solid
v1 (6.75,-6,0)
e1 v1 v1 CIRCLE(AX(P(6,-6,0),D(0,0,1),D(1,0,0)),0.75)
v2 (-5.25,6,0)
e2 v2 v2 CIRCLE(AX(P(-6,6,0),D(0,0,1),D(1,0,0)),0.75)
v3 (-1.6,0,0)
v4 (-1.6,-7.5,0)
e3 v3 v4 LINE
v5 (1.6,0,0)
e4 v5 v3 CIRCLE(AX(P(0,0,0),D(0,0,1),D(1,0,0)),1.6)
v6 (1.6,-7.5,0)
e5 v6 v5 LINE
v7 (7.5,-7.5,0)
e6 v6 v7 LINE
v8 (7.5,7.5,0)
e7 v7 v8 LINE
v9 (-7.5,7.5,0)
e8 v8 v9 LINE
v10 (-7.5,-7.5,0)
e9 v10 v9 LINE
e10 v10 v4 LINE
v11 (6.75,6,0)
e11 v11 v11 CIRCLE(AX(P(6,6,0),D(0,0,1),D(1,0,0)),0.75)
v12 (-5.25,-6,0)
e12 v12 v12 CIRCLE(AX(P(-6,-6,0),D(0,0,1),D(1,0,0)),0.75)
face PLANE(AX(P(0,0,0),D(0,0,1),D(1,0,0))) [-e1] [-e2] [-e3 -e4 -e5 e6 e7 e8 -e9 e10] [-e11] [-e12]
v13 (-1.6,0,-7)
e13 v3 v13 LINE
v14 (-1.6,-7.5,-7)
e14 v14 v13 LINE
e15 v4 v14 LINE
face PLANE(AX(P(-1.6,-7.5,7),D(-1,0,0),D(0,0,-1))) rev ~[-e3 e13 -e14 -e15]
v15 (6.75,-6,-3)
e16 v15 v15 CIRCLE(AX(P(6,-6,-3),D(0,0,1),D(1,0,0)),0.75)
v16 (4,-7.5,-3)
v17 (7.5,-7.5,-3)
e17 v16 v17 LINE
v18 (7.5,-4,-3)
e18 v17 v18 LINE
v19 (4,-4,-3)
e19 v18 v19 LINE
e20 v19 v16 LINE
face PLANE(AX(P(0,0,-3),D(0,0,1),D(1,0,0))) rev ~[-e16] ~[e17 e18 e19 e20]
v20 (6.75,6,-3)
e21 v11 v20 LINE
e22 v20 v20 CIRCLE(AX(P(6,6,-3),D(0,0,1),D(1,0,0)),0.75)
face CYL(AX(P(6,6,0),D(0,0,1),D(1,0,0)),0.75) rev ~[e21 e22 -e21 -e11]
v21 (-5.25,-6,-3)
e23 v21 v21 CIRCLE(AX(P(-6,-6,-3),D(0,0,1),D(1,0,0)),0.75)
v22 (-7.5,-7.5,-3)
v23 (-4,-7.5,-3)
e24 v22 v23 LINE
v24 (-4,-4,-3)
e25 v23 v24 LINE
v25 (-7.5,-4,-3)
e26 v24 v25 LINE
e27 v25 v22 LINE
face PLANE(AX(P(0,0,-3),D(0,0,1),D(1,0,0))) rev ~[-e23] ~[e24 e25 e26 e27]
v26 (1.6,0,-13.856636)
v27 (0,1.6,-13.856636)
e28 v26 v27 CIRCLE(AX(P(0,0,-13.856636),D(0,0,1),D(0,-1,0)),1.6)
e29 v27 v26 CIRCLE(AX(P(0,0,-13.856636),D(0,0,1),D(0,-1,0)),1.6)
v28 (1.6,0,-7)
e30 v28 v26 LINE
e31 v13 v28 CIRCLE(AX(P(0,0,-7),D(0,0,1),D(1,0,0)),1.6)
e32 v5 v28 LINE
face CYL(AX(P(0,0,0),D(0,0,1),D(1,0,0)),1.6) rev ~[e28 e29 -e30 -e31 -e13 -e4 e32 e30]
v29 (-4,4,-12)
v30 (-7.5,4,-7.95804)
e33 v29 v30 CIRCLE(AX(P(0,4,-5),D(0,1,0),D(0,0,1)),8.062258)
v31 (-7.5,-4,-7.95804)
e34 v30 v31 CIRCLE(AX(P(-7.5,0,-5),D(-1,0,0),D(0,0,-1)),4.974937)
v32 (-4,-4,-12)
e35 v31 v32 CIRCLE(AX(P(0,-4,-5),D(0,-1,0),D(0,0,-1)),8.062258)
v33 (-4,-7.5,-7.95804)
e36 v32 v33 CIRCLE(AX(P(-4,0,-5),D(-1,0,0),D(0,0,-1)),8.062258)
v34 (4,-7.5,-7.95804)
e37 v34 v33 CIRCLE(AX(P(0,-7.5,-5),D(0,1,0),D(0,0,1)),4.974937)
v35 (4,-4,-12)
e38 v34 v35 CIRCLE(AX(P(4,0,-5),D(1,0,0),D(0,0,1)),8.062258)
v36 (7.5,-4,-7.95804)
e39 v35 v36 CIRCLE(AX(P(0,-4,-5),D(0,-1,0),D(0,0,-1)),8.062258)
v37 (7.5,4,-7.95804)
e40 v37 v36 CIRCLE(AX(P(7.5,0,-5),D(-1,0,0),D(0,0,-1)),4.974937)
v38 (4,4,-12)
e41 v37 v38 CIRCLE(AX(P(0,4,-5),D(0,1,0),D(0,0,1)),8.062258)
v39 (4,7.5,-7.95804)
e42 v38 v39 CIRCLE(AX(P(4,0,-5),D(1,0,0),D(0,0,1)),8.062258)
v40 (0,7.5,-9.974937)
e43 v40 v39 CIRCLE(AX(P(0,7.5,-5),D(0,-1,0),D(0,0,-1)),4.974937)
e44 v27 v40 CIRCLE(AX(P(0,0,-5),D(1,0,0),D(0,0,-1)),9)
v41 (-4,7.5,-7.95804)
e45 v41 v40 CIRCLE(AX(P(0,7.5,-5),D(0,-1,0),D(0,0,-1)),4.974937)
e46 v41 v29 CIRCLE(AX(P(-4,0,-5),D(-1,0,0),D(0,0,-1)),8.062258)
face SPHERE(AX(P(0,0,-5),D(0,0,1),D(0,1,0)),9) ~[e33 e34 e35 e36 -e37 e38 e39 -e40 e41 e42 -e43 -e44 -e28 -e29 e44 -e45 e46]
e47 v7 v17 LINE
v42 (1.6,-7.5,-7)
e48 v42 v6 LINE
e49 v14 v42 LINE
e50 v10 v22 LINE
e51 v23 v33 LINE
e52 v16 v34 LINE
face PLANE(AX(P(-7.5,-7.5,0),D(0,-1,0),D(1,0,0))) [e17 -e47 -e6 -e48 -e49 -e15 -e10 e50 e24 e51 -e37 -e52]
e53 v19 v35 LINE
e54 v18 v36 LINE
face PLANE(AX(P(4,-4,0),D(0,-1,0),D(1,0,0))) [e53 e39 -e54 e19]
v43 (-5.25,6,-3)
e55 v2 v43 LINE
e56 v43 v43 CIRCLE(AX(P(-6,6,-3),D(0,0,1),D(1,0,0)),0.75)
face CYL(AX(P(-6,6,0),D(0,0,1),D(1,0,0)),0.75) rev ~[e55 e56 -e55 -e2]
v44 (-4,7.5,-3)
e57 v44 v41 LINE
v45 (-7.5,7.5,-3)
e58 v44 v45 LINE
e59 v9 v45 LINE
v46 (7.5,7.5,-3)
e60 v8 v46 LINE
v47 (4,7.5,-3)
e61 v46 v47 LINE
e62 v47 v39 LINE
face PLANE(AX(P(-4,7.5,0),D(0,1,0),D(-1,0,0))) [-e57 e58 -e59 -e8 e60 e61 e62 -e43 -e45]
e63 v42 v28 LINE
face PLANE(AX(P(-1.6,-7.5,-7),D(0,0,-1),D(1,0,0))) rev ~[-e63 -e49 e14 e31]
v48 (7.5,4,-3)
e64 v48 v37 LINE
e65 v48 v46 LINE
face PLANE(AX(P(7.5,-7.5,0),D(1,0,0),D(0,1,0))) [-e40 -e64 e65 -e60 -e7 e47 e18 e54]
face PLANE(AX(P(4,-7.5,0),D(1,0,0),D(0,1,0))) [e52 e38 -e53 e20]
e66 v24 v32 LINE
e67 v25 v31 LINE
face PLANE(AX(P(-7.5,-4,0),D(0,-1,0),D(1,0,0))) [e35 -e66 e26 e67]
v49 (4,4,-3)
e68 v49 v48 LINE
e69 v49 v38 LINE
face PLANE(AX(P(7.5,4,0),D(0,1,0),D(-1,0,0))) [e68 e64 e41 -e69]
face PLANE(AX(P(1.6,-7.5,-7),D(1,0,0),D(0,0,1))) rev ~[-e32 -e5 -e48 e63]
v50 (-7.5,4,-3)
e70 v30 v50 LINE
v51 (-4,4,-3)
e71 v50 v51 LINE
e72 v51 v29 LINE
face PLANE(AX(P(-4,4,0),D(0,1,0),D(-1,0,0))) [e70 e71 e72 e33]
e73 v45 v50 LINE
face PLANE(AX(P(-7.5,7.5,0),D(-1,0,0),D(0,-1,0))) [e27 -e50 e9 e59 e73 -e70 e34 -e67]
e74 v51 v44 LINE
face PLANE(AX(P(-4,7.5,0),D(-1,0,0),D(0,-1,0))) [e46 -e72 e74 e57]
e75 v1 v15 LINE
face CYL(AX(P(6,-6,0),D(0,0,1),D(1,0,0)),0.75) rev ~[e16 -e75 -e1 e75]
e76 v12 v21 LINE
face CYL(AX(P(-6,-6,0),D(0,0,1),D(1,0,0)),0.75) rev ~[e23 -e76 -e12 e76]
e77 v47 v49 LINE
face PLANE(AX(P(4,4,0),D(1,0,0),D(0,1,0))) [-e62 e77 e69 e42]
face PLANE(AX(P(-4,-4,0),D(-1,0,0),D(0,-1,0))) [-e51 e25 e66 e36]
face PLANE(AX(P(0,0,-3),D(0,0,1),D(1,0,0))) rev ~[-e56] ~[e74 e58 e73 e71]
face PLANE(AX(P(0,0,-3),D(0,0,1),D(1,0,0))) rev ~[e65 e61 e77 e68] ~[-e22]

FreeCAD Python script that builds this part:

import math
import FreeCAD as App
import Part
import Sketcher


def add_polygon(sketch, points):
    """Adds a closed chain of lines whose ends are joined by coincident constraints."""
    first, n = sketch.GeometryCount, len(points)
    for a, b in zip(points, points[1:] + points[:1]):
        sketch.addGeometry(Part.LineSegment(App.Vector(*a, 0), App.Vector(*b, 0)), False)
    for i in range(n):
        sketch.addConstraint(Sketcher.Constraint("Coincident", first + i, 2, first + (i + 1) % n, 1))

doc = App.newDocument("Part")
body = doc.addObject("PartDesign::Body", "Body")

# Sketch on XY plane
sketch1 = body.newObject("Sketcher::SketchObject", "Sketch")
sketch1.AttachmentSupport = (doc.getObject("XY_Plane"), [""])
sketch1.MapMode = "FlatFace"
add_polygon(sketch1, [(-7.5, 7.5), (-7.5, -7.5), (7.5, -7.5), (7.5, 7.5)])  # lines 0-3
sketch1.addConstraint([
    Sketcher.Constraint("Vertical", 0),
    Sketcher.Constraint("Horizontal", 1),
    Sketcher.Constraint("Vertical", 2),
    Sketcher.Constraint("Horizontal", 3),
    Sketcher.Constraint("Symmetric", 0, 2, 2, 2, -1, 1),
    Sketcher.Constraint("Equal", 3, 0),
    Sketcher.Constraint("DistanceX", 1, 1, 1, 2, 15.0),
])
pad1 = body.newObject("PartDesign::Pad", "Pad")
pad1.Profile = sketch1
pad1.Length = 5
pad1.Reversed = True

# Sketch on YZ plane
sketch2 = body.newObject("Sketcher::SketchObject", "Sketch001")
sketch2.AttachmentSupport = (doc.getObject("YZ_Plane"), [""])
sketch2.MapMode = "FlatFace"
sketch2.addGeometry([
    Part.LineSegment(App.Vector(9, -5, 0), App.Vector(0, -5, 0)),
    Part.LineSegment(App.Vector(0, -5, 0), App.Vector(0, -14, 0)),
    Part.ArcOfCircle(Part.Circle(App.Vector(0, -5, 0), App.Vector(0, 0, 1), 9), math.radians(-90), math.radians(0)),
], False)
sketch2.addConstraint([
    Sketcher.Constraint("Coincident", 0, 2, 1, 1),
    Sketcher.Constraint("Coincident", 1, 2, 2, 1),
    Sketcher.Constraint("Coincident", 2, 2, 0, 1),
    Sketcher.Constraint("Horizontal", 0),
    Sketcher.Constraint("Vertical", 1),
    Sketcher.Constraint("Coincident", 0, 2, 2, 3),
    Sketcher.Constraint("PointOnObject", 2, 3, -2),
    Sketcher.Constraint("Radius", 2, 9.0),
    Sketcher.Constraint("DistanceY", 2, 3, -1, 1, 5.0),
])
revolution = body.newObject("PartDesign::Revolution", "Revolution")
revolution.Profile = sketch2
revolution.ReferenceAxis = (sketch2, ["V_Axis"])
revolution.Angle = 360

# Sketch on XY plane
sketch3 = body.newObject("Sketcher::SketchObject", "Sketch002")
sketch3.AttachmentSupport = (doc.getObject("XY_Plane"), [""])
sketch3.MapMode = "FlatFace"
sketch3.addGeometry(Part.ArcOfCircle(Part.Circle(App.Vector(0, 0, 0), App.Vector(0, 0, 1), 9), math.radians(146.44269), math.radians(213.55731)), False)  # 0
sketch3.addGeometry(Part.LineSegment(App.Vector(-7.5, -4.974937, 0), App.Vector(-7.5, -7.5, 0)), False)  # 1
sketch3.addGeometry(Part.LineSegment(App.Vector(-7.5, -7.5, 0), App.Vector(-4.9749, -7.5, 0)), False)  # 2
sketch3.addGeometry(Part.ArcOfCircle(Part.Circle(App.Vector(0, 0, 0), App.Vector(0, 0, 1), 8.999979), math.radians(-123.557112), math.radians(-56.442888)), False)  # 3
sketch3.addGeometry(Part.LineSegment(App.Vector(4.9749, -7.5, 0), App.Vector(7.5, -7.5, 0)), False)  # 4
sketch3.addGeometry(Part.LineSegment(App.Vector(7.5, -7.5, 0), App.Vector(7.5, -4.974937, 0)), False)  # 5
sketch3.addGeometry(Part.ArcOfCircle(Part.Circle(App.Vector(0, 0, 0), App.Vector(0, 0, 1), 9), math.radians(-33.55731), math.radians(33.55731)), False)  # 6
sketch3.addGeometry(Part.LineSegment(App.Vector(7.5, 4.974937, 0), App.Vector(7.5, 7.5, 0)), False)  # 7
sketch3.addGeometry(Part.LineSegment(App.Vector(7.5, 7.5, 0), App.Vector(4.974937, 7.5, 0)), False)  # 8
sketch3.addGeometry(Part.ArcOfCircle(Part.Circle(App.Vector(0, 0, 0), App.Vector(0, 0, 1), 9), math.radians(56.44269), math.radians(123.55731)), False)  # 9
sketch3.addGeometry(Part.LineSegment(App.Vector(-4.974937, 7.5, 0), App.Vector(-7.5, 7.5, 0)), False)  # 10
sketch3.addGeometry(Part.LineSegment(App.Vector(-7.5, 7.5, 0), App.Vector(-7.5, 4.974937, 0)), False)  # 11
add_polygon(sketch3, [(-7.5, -4), (-7.5, 4), (-4, 4), (-4, 7.5), (4, 7.5), (4, 4), (7.5, 4), (7.5, -4), (4, -4), (4, -7.5), (-4, -7.5), (-4, -4)])  # lines 12-23
sketch3.addConstraint([
    Sketcher.Constraint("Coincident", 0, 2, 1, 1),
    Sketcher.Constraint("Coincident", 1, 2, 2, 1),
    Sketcher.Constraint("Coincident", 2, 2, 3, 1),
    Sketcher.Constraint("Coincident", 3, 2, 4, 1),
    Sketcher.Constraint("Coincident", 4, 2, 5, 1),
    Sketcher.Constraint("Coincident", 5, 2, 6, 1),
    Sketcher.Constraint("Coincident", 6, 2, 7, 1),
    Sketcher.Constraint("Coincident", 7, 2, 8, 1),
    Sketcher.Constraint("Coincident", 8, 2, 9, 1),
    Sketcher.Constraint("Coincident", 9, 2, 10, 1),
    Sketcher.Constraint("Coincident", 10, 2, 11, 1),
    Sketcher.Constraint("Coincident", 11, 2, 0, 1),
    Sketcher.Constraint("Vertical", 1),
    Sketcher.Constraint("Horizontal", 2),
    Sketcher.Constraint("Horizontal", 4),
    Sketcher.Constraint("Vertical", 5),
    Sketcher.Constraint("Vertical", 7),
    Sketcher.Constraint("Horizontal", 8),
    Sketcher.Constraint("Horizontal", 10),
    Sketcher.Constraint("Vertical", 11),
    Sketcher.Constraint("Vertical", 12),
    Sketcher.Constraint("Horizontal", 13),
    Sketcher.Constraint("Vertical", 14),
    Sketcher.Constraint("Horizontal", 15),
    Sketcher.Constraint("Vertical", 16),
    Sketcher.Constraint("Horizontal", 17),
    Sketcher.Constraint("Vertical", 18),
    Sketcher.Constraint("Horizontal", 19),
    Sketcher.Constraint("Vertical", 20),
    Sketcher.Constraint("Horizontal", 21),
    Sketcher.Constraint("Vertical", 22),
    Sketcher.Constraint("Horizontal", 23),
    Sketcher.Constraint("Coincident", 0, 3, -1, 1),
    Sketcher.Constraint("Coincident", 3, 3, -1, 1),
    Sketcher.Constraint("Coincident", 6, 3, -1, 1),
    Sketcher.Constraint("Coincident", 9, 3, -1, 1),
    Sketcher.Constraint("Equal", 0, 3),
    Sketcher.Constraint("Equal", 3, 6),
    Sketcher.Constraint("Equal", 6, 9),
    Sketcher.Constraint("Symmetric", 1, 2, 7, 2, -1, 1),
    Sketcher.Constraint("Symmetric", 4, 2, 10, 2, -1, 1),
    Sketcher.Constraint("Symmetric", 12, 2, 18, 2, -1, 1),
    Sketcher.Constraint("Symmetric", 14, 2, 20, 2, -1, 1),
    Sketcher.Constraint("Symmetric", 16, 2, 22, 2, -1, 1),
    Sketcher.Constraint("Symmetric", 1, 2, 4, 2, -2),
    Sketcher.Constraint("Symmetric", 13, 2, 16, 2, -2),
    Sketcher.Constraint("Horizontal", 10, 2, 14, 2),
    Sketcher.Constraint("Vertical", 11, 2, 12, 2),
    Sketcher.Constraint("Equal", 10, 1),
    Sketcher.Constraint("Equal", 21, 12),
    Sketcher.Constraint("DistanceX", 13, 1, 13, 2, 3.5),
    Sketcher.Constraint("Radius", 0, 9.0),
    Sketcher.Constraint("DistanceX", 15, 1, 15, 2, 8.0),
])
pocket1 = body.newObject("PartDesign::Pocket", "Pocket")
pocket1.Profile = sketch3
pocket1.Type = "UpToFirst"

# Sketch on XY plane
sketch4 = body.newObject("Sketcher::SketchObject", "Sketch003")
sketch4.AttachmentSupport = (doc.getObject("XY_Plane"), [""])
sketch4.MapMode = "FlatFace"
add_polygon(sketch4, [(-7.5, 7.5), (-7.5, -7.5), (7.5, -7.5), (7.5, 7.5)])  # lines 0-3
sketch4.addConstraint([
    Sketcher.Constraint("Vertical", 0),
    Sketcher.Constraint("Horizontal", 1),
    Sketcher.Constraint("Vertical", 2),
    Sketcher.Constraint("Horizontal", 3),
    Sketcher.Constraint("Symmetric", 0, 2, 2, 2, -1, 1),
    Sketcher.Constraint("Equal", 3, 0),
    Sketcher.Constraint("DistanceX", 1, 1, 1, 2, 15.0),
])
pad2 = body.newObject("PartDesign::Pad", "Pad001")
pad2.Profile = sketch4
pad2.Length = 3
pad2.Reversed = True

# Sketch on XY plane
sketch5 = body.newObject("Sketcher::SketchObject", "Sketch004")
sketch5.AttachmentSupport = (doc.getObject("XY_Plane"), [""])
sketch5.MapMode = "FlatFace"
sketch5.addGeometry([
    Part.Circle(App.Vector(-6, -6, 0), App.Vector(0, 0, 1), 0.75),  # 0
    Part.Circle(App.Vector(6, -6, 0), App.Vector(0, 0, 1), 0.75),  # 1
    Part.Circle(App.Vector(6, 6, 0), App.Vector(0, 0, 1), 0.75),  # 2
    Part.Circle(App.Vector(-6, 6, 0), App.Vector(0, 0, 1), 0.75),  # 3
    Part.Circle(App.Vector(0, 0, 0), App.Vector(0, 0, 1), 1.6),  # 4
], False)
sketch5.addConstraint([
    Sketcher.Constraint("Coincident", 4, 3, -1, 1),
    Sketcher.Constraint("Equal", 0, 1),
    Sketcher.Constraint("Equal", 1, 2),
    Sketcher.Constraint("Equal", 2, 3),
    Sketcher.Constraint("Symmetric", 0, 3, 2, 3, -1, 1),
    Sketcher.Constraint("Symmetric", 1, 3, 3, 3, -1, 1),
    Sketcher.Constraint("Symmetric", 0, 3, 1, 3, -2),
    Sketcher.Constraint("Diameter", 0, 1.5),
    Sketcher.Constraint("Diameter", 4, 3.2),
    Sketcher.Constraint("DistanceX", 0, 3, -1, 1, 6.0),
    Sketcher.Constraint("DistanceY", 0, 3, -1, 1, 6.0),
])
pocket2 = body.newObject("PartDesign::Pocket", "Pocket001")
pocket2.Profile = sketch5
pocket2.Type = "UpToFirst"

# Sketch on XZ plane
sketch6 = body.newObject("Sketcher::SketchObject", "Sketch005")
sketch6.AttachmentSupport = (doc.getObject("XZ_Plane"), [""])
sketch6.MapMode = "FlatFace"
sketch6.AttachmentOffset = App.Placement(App.Vector(0, 0, 7.5), App.Rotation())
add_polygon(sketch6, [(1.6, 7), (-1.6, 7), (-1.6, -7), (1.6, -7)])  # lines 0-3
sketch6.addConstraint([
    Sketcher.Constraint("Horizontal", 0),
    Sketcher.Constraint("Vertical", 1),
    Sketcher.Constraint("Horizontal", 2),
    Sketcher.Constraint("Vertical", 3),
    Sketcher.Constraint("Symmetric", 0, 2, 2, 2, -1, 1),
    Sketcher.Constraint("DistanceX", 0, 2, 0, 1, 3.2),
    Sketcher.Constraint("DistanceY", -1, 1, 0, 2, 7.0),
])
pocket3 = body.newObject("PartDesign::Pocket", "Pocket002")
pocket3.Profile = sketch6
pocket3.Length = 7.5

doc.recompute()
